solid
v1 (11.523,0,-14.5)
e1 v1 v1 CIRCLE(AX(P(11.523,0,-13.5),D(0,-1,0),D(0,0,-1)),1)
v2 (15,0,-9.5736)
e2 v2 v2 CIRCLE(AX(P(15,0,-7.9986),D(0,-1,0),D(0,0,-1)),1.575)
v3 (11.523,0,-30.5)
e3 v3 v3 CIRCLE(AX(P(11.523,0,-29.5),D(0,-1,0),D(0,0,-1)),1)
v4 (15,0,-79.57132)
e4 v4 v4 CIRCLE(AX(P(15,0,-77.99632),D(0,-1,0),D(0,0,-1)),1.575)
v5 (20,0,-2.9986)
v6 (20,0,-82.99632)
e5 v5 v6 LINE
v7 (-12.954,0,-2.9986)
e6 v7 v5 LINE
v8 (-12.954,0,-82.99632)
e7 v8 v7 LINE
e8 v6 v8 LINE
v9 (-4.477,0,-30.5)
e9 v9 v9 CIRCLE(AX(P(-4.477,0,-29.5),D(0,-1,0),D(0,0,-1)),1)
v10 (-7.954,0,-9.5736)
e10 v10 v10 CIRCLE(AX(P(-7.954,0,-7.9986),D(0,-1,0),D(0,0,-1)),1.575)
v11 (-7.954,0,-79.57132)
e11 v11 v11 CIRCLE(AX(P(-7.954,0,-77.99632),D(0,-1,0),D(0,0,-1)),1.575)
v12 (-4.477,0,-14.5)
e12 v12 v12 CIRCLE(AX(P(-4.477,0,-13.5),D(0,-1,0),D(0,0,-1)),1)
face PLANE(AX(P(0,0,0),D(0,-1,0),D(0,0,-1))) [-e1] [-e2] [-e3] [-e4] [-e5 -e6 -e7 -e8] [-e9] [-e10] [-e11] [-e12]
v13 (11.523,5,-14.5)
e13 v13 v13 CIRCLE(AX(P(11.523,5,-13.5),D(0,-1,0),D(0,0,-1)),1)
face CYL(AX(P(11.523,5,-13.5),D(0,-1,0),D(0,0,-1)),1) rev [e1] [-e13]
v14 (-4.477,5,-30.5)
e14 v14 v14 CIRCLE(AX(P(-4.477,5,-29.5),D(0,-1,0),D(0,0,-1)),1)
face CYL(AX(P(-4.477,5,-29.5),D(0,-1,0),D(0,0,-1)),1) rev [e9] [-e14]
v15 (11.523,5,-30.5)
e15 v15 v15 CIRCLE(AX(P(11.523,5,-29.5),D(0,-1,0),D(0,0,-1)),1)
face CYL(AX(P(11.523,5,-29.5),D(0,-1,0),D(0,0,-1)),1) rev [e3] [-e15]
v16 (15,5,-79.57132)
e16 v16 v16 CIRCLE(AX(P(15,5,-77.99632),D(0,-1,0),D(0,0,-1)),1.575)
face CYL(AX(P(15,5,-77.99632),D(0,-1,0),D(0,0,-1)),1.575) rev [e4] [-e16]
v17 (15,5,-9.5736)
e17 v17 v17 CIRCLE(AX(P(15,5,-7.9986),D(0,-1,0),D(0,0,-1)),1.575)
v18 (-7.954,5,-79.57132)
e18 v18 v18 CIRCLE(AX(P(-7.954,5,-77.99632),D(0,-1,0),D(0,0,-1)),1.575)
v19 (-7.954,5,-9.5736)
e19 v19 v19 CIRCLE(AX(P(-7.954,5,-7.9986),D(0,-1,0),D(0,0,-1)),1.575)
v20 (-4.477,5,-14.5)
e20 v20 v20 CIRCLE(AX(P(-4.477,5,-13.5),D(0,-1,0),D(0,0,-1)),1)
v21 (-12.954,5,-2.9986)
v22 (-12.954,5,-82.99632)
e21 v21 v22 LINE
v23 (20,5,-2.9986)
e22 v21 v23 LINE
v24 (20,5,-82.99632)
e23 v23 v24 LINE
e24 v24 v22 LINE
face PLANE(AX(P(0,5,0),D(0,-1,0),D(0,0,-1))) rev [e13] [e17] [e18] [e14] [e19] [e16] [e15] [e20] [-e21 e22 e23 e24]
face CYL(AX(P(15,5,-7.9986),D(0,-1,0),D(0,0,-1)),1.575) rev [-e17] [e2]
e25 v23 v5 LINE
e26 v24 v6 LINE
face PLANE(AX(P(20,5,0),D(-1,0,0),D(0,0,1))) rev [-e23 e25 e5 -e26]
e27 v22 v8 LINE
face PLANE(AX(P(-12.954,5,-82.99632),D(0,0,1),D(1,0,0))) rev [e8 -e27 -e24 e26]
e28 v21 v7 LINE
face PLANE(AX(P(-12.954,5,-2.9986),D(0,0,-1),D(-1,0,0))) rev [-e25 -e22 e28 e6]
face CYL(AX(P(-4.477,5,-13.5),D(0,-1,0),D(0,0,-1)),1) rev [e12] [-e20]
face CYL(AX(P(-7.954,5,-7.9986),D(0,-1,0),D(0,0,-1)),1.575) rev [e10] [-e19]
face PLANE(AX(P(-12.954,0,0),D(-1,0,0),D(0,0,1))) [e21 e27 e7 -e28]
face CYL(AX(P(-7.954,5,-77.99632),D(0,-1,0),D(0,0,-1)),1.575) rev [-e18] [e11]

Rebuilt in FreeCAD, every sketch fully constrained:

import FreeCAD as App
import Part
import Sketcher

doc = App.newDocument("Part")
body = doc.addObject("PartDesign::Body", "Body")

# Sketch on XZ plane
sketch1 = doc.addObject("Sketcher::SketchObject", "Sketch")
body.addObject(sketch1)
sketch1.AttachmentSupport = (doc.XZ_Plane, [""])
sketch1.MapMode = "FlatFace"
sketch1.addGeometry(Part.LineSegment(App.Vector(0, -40, 0), App.Vector(0, 0, 0)), False)
sketch1.addGeometry(Part.LineSegment(App.Vector(0, 0, 0), App.Vector(20, 0, 0)), False)
sketch1.addGeometry(Part.LineSegment(App.Vector(20, 0, 0), App.Vector(20, -40, 0)), False)
sketch1.addGeometry(Part.LineSegment(App.Vector(20, -40, 0), App.Vector(0, -40, 0)), False)
sketch1.addConstraint(Sketcher.Constraint("Coincident", 0, 2, 1, 1))
sketch1.addConstraint(Sketcher.Constraint("Coincident", 1, 2, 2, 1))
sketch1.addConstraint(Sketcher.Constraint("Coincident", 2, 2, 3, 1))
sketch1.addConstraint(Sketcher.Constraint("Coincident", 3, 2, 0, 1))
sketch1.addConstraint(Sketcher.Constraint("Vertical", 0))
sketch1.addConstraint(Sketcher.Constraint("Horizontal", 1))
sketch1.addConstraint(Sketcher.Constraint("Vertical", 2))
sketch1.addConstraint(Sketcher.Constraint("Horizontal", 3))
sketch1.addConstraint(Sketcher.Constraint("Coincident", 0, 2, -1, 1))
sketch1.addConstraint(Sketcher.Constraint("DistanceX", 1, 1, 1, 2, 20.0))
sketch1.addConstraint(Sketcher.Constraint("DistanceY", 0, 1, 0, 2, 40.0))
pad1 = doc.addObject("PartDesign::Pad", "Pad")
body.addObject(pad1)
pad1.Profile = sketch1
pad1.Length = 5
pad1.Reversed = True

# Sketch on XY plane
sketch2 = doc.addObject("Sketcher::SketchObject", "Sketch001")
body.addObject(sketch2)
sketch2.AttachmentSupport = (doc.XY_Plane, [""])
sketch2.MapMode = "FlatFace"
sketch2.AttachmentOffset = App.Placement(App.Vector(0, 0, -40), App.Rotation())
sketch2.addGeometry(Part.LineSegment(App.Vector(20, 5, 0), App.Vector(20, 0, 0)), False)
sketch2.addGeometry(Part.LineSegment(App.Vector(20, 0, 0), App.Vector(0, 0, 0)), False)
sketch2.addGeometry(Part.LineSegment(App.Vector(0, 0, 0), App.Vector(0, 5, 0)), False)
sketch2.addGeometry(Part.LineSegment(App.Vector(0, 5, 0), App.Vector(20, 5, 0)), False)
sketch2.addConstraint(Sketcher.Constraint("Coincident", 0, 2, 1, 1))
sketch2.addConstraint(Sketcher.Constraint("Coincident", 1, 2, 2, 1))
sketch2.addConstraint(Sketcher.Constraint("Coincident", 2, 2, 3, 1))
sketch2.addConstraint(Sketcher.Constraint("Coincident", 3, 2, 0, 1))
sketch2.addConstraint(Sketcher.Constraint("Vertical", 0))
sketch2.addConstraint(Sketcher.Constraint("Horizontal", 1))
sketch2.addConstraint(Sketcher.Constraint("Vertical", 2))
sketch2.addConstraint(Sketcher.Constraint("Horizontal", 3))
sketch2.addConstraint(Sketcher.Constraint("Coincident", 1, 2, -1, 1))
sketch2.addConstraint(Sketcher.Constraint("DistanceX", 1, 2, 1, 1, 20.0))
sketch2.addConstraint(Sketcher.Constraint("DistanceY", 0, 2, 0, 1, 5.0))
pad2 = doc.addObject("PartDesign::Pad", "Pad001")
body.addObject(pad2)
pad2.Profile = sketch2
pad2.Length = 33
pad2.Reversed = True

# Sketch on XZ plane
sketch3 = doc.addObject("Sketcher::SketchObject", "Sketch002")
body.addObject(sketch3)
sketch3.AttachmentSupport = (doc.XZ_Plane, [""])
sketch3.MapMode = "FlatFace"
sketch3.AttachmentOffset = App.Placement(App.Vector(0, 0, -5), App.Rotation())
sketch3.addGeometry(Part.LineSegment(App.Vector(0, -3, 0), App.Vector(0, 0, 0)), False)
sketch3.addGeometry(Part.LineSegment(App.Vector(0, 0, 0), App.Vector(20, 0, 0)), False)
sketch3.addGeometry(Part.LineSegment(App.Vector(20, 0, 0), App.Vector(20, -3, 0)), False)
sketch3.addGeometry(Part.LineSegment(App.Vector(20, -3, 0), App.Vector(0, -3, 0)), False)
sketch3.addConstraint(Sketcher.Constraint("Coincident", 0, 2, 1, 1))
sketch3.addConstraint(Sketcher.Constraint("Coincident", 1, 2, 2, 1))
sketch3.addConstraint(Sketcher.Constraint("Coincident", 2, 2, 3, 1))
sketch3.addConstraint(Sketcher.Constraint("Coincident", 3, 2, 0, 1))
sketch3.addConstraint(Sketcher.Constraint("Vertical", 0))
sketch3.addConstraint(Sketcher.Constraint("Horizontal", 1))
sketch3.addConstraint(Sketcher.Constraint("Vertical", 2))
sketch3.addConstraint(Sketcher.Constraint("Horizontal", 3))
sketch3.addConstraint(Sketcher.Constraint("Coincident", 0, 2, -1, 1))
sketch3.addConstraint(Sketcher.Constraint("DistanceX", 1, 1, 1, 2, 20.0))
sketch3.addConstraint(Sketcher.Constraint("DistanceY", 0, 1, 0, 2, 3.0))
pocket1 = doc.addObject("PartDesign::Pocket", "Pocket")
body.addObject(pocket1)
pocket1.Profile = sketch3
pocket1.Type = "ThroughAll"
pocket1.Reversed = True

# Sketch on XY plane
sketch4 = doc.addObject("Sketcher::SketchObject", "Sketch003")
body.addObject(sketch4)
sketch4.AttachmentSupport = (doc.XY_Plane, [""])
sketch4.MapMode = "FlatFace"
sketch4.AttachmentOffset = App.Placement(App.Vector(0, 0, -73), App.Rotation())
sketch4.addGeometry(Part.LineSegment(App.Vector(20, 5, 0), App.Vector(20, 0, 0)), False)
sketch4.addGeometry(Part.LineSegment(App.Vector(20, 0, 0), App.Vector(0, 0, 0)), False)
sketch4.addGeometry(Part.LineSegment(App.Vector(0, 0, 0), App.Vector(0, 5, 0)), False)
sketch4.addGeometry(Part.LineSegment(App.Vector(0, 5, 0), App.Vector(20, 5, 0)), False)
sketch4.addConstraint(Sketcher.Constraint("Coincident", 0, 2, 1, 1))
sketch4.addConstraint(Sketcher.Constraint("Coincident", 1, 2, 2, 1))
sketch4.addConstraint(Sketcher.Constraint("Coincident", 2, 2, 3, 1))
sketch4.addConstraint(Sketcher.Constraint("Coincident", 3, 2, 0, 1))
sketch4.addConstraint(Sketcher.Constraint("Vertical", 0))
sketch4.addConstraint(Sketcher.Constraint("Horizontal", 1))
sketch4.addConstraint(Sketcher.Constraint("Vertical", 2))
sketch4.addConstraint(Sketcher.Constraint("Horizontal", 3))
sketch4.addConstraint(Sketcher.Constraint("Coincident", 1, 2, -1, 1))
sketch4.addConstraint(Sketcher.Constraint("DistanceX", 1, 2, 1, 1, 20.0))
sketch4.addConstraint(Sketcher.Constraint("DistanceY", 0, 2, 0, 1, 5.0))
pad3 = doc.addObject("PartDesign::Pad", "Pad002")
body.addObject(pad3)
pad3.Profile = sketch4
pad3.Length = 10
pad3.Reversed = True

# Sketch on XY plane
sketch5 = doc.addObject("Sketcher::SketchObject", "Sketch004")
body.addObject(sketch5)
sketch5.AttachmentSupport = (doc.XY_Plane, [""])
sketch5.MapMode = "FlatFace"
sketch5.AttachmentOffset = App.Placement(App.Vector(0, 0, -83), App.Rotation())
sketch5.addGeometry(Part.LineSegment(App.Vector(20, 5, 0), App.Vector(20, 0, 0)), False)
sketch5.addGeometry(Part.LineSegment(App.Vector(20, 0, 0), App.Vector(0, 0, 0)), False)
sketch5.addGeometry(Part.LineSegment(App.Vector(0, 0, 0), App.Vector(0, 5, 0)), False)
sketch5.addGeometry(Part.LineSegment(App.Vector(0, 5, 0), App.Vector(20, 5, 0)), False)
sketch5.addConstraint(Sketcher.Constraint("Coincident", 0, 2, 1, 1))
sketch5.addConstraint(Sketcher.Constraint("Coincident", 1, 2, 2, 1))
sketch5.addConstraint(Sketcher.Constraint("Coincident", 2, 2, 3, 1))
sketch5.addConstraint(Sketcher.Constraint("Coincident", 3, 2, 0, 1))
sketch5.addConstraint(Sketcher.Constraint("Vertical", 0))
sketch5.addConstraint(Sketcher.Constraint("Horizontal", 1))
sketch5.addConstraint(Sketcher.Constraint("Vertical", 2))
sketch5.addConstraint(Sketcher.Constraint("Horizontal", 3))
sketch5.addConstraint(Sketcher.Constraint("Coincident", 1, 2, -1, 1))
sketch5.addConstraint(Sketcher.Constraint("DistanceX", 1, 2, 1, 1, 20.0))
sketch5.addConstraint(Sketcher.Constraint("DistanceY", 0, 2, 0, 1, 5.0))
pad4 = doc.addObject("PartDesign::Pad", "Pad003")
body.addObject(pad4)
pad4.Profile = sketch5
pad4.Length = 1.5
pad4.Reversed = True

# Sketch on XY plane
sketch6 = doc.addObject("Sketcher::SketchObject", "Sketch005")
body.addObject(sketch6)
sketch6.AttachmentSupport = (doc.XY_Plane, [""])
sketch6.MapMode = "FlatFace"
sketch6.AttachmentOffset = App.Placement(App.Vector(0, 0, -3), App.Rotation())
sketch6.addGeometry(Part.LineSegment(App.Vector(0, 5, 0), App.Vector(0, 0, 0)), False)
sketch6.addGeometry(Part.LineSegment(App.Vector(0, 0, 0), App.Vector(20, 0, 0)), False)
sketch6.addGeometry(Part.LineSegment(App.Vector(20, 0, 0), App.Vector(20, 5, 0)), False)
sketch6.addGeometry(Part.LineSegment(App.Vector(20, 5, 0), App.Vector(0, 5, 0)), False)
sketch6.addConstraint(Sketcher.Constraint("Coincident", 0, 2, 1, 1))
sketch6.addConstraint(Sketcher.Constraint("Coincident", 1, 2, 2, 1))
sketch6.addConstraint(Sketcher.Constraint("Coincident", 2, 2, 3, 1))
sketch6.addConstraint(Sketcher.Constraint("Coincident", 3, 2, 0, 1))
sketch6.addConstraint(Sketcher.Constraint("Vertical", 0))
sketch6.addConstraint(Sketcher.Constraint("Horizontal", 1))
sketch6.addConstraint(Sketcher.Constraint("Vertical", 2))
sketch6.addConstraint(Sketcher.Constraint("Horizontal", 3))
sketch6.addConstraint(Sketcher.Constraint("Coincident", 0, 2, -1, 1))
sketch6.addConstraint(Sketcher.Constraint("DistanceX", 1, 1, 1, 2, 20.0))
sketch6.addConstraint(Sketcher.Constraint("DistanceY", 0, 2, 0, 1, 5.0))
pad5 = doc.addObject("PartDesign::Pad", "Pad004")
body.addObject(pad5)
pad5.Profile = sketch6
pad5.Length = 1.5

# Sketch on YZ plane
sketch7 = doc.addObject("Sketcher::SketchObject", "Sketch006")
body.addObject(sketch7)
sketch7.AttachmentSupport = (doc.YZ_Plane, [""])
sketch7.MapMode = "FlatFace"
sketch7.addGeometry(Part.LineSegment(App.Vector(5, -84, 0), App.Vector(0, -84, 0)), False)
sketch7.addGeometry(Part.LineSegment(App.Vector(0, -84, 0), App.Vector(0, -2, 0)), False)
sketch7.addGeometry(Part.LineSegment(App.Vector(0, -2, 0), App.Vector(5, -2, 0)), False)
sketch7.addGeometry(Part.LineSegment(App.Vector(5, -2, 0), App.Vector(5, -84, 0)), False)
sketch7.addConstraint(Sketcher.Constraint("Coincident", 0, 2, 1, 1))
sketch7.addConstraint(Sketcher.Constraint("Coincident", 1, 2, 2, 1))
sketch7.addConstraint(Sketcher.Constraint("Coincident", 2, 2, 3, 1))
sketch7.addConstraint(Sketcher.Constraint("Coincident", 3, 2, 0, 1))
sketch7.addConstraint(Sketcher.Constraint("Horizontal", 0))
sketch7.addConstraint(Sketcher.Constraint("Vertical", 1))
sketch7.addConstraint(Sketcher.Constraint("Horizontal", 2))
sketch7.addConstraint(Sketcher.Constraint("Vertical", 3))
sketch7.addConstraint(Sketcher.Constraint("PointOnObject", 0, 2, -2))
sketch7.addConstraint(Sketcher.Constraint("DistanceX", 0, 2, 0, 1, 5.0))
sketch7.addConstraint(Sketcher.Constraint("DistanceY", 1, 1, 1, 2, 83.0))
sketch7.addConstraint(Sketcher.Constraint("DistanceY", 0, 2, -1, 1, 84.5))
pad6 = doc.addObject("PartDesign::Pad", "Pad005")
body.addObject(pad6)
pad6.Profile = sketch7
pad6.Length = 12.954
pad6.Reversed = True

# Sketch on XZ plane
sketch8 = doc.addObject("Sketcher::SketchObject", "Sketch007")
body.addObject(sketch8)
sketch8.AttachmentSupport = (doc.XZ_Plane, [""])
sketch8.MapMode = "FlatFace"
sketch8.addGeometry(Part.Circle(App.Vector(-4.5, -13.5, 0), App.Vector(0, 0, 1), 1), False)
sketch8.addGeometry(Part.Circle(App.Vector(11.5, -13.5, 0), App.Vector(0, 0, 1), 1), False)
sketch8.addGeometry(Part.Circle(App.Vector(11.5, -29.5, 0), App.Vector(0, 0, 1), 1), False)
sketch8.addGeometry(Part.Circle(App.Vector(-4.5, -29.5, 0), App.Vector(0, 0, 1), 1), False)
sketch8.addConstraint(Sketcher.Constraint("Equal", 0, 1))
sketch8.addConstraint(Sketcher.Constraint("Equal", 1, 2))
sketch8.addConstraint(Sketcher.Constraint("Equal", 2, 3))
sketch8.addConstraint(Sketcher.Constraint("Horizontal", 0, 3, 1, 3))
sketch8.addConstraint(Sketcher.Constraint("Horizontal", 2, 3, 3, 3))
sketch8.addConstraint(Sketcher.Constraint("Vertical", 1, 3, 2, 3))
sketch8.addConstraint(Sketcher.Constraint("Vertical", 0, 3, 3, 3))
sketch8.addConstraint(Sketcher.Constraint("Diameter", 0, 2.0))
sketch8.addConstraint(Sketcher.Constraint("DistanceX", 0, 3, 1, 3, 16.0))
sketch8.addConstraint(Sketcher.Constraint("DistanceY", 2, 3, 1, 3, 16.0))
sketch8.addConstraint(Sketcher.Constraint("DistanceY", 0, 3, -1, 1, 13.5))
sketch8.addConstraint(Sketcher.Constraint("DistanceX", 0, 3, -1, 1, 4.477))
pocket2 = doc.addObject("PartDesign::Pocket", "Pocket001")
body.addObject(pocket2)
pocket2.Profile = sketch8
pocket2.Type = "ThroughAll"

# Sketch on XZ plane
sketch9 = doc.addObject("Sketcher::SketchObject", "Sketch008")
body.addObject(sketch9)
sketch9.AttachmentSupport = (doc.XZ_Plane, [""])
sketch9.MapMode = "FlatFace"
sketch9.addGeometry(Part.LineSegment(App.Vector(-13, -1.5, 0), App.Vector(-13, -3, 0)), False)
sketch9.addGeometry(Part.LineSegment(App.Vector(-13, -3, 0), App.Vector(20, -3, 0)), False)
sketch9.addGeometry(Part.LineSegment(App.Vector(20, -3, 0), App.Vector(20, -1.5, 0)), False)
sketch9.addGeometry(Part.LineSegment(App.Vector(20, -1.5, 0), App.Vector(-13, -1.5, 0)), False)
sketch9.addGeometry(Part.LineSegment(App.Vector(-13, -83, 0), App.Vector(-13, -84.5, 0)), False)
sketch9.addGeometry(Part.LineSegment(App.Vector(-13, -84.5, 0), App.Vector(20, -84.5, 0)), False)
sketch9.addGeometry(Part.LineSegment(App.Vector(20, -84.5, 0), App.Vector(20, -83, 0)), False)
sketch9.addGeometry(Part.LineSegment(App.Vector(20, -83, 0), App.Vector(-13, -83, 0)), False)
sketch9.addConstraint(Sketcher.Constraint("Coincident", 0, 2, 1, 1))
sketch9.addConstraint(Sketcher.Constraint("Coincident", 1, 2, 2, 1))
sketch9.addConstraint(Sketcher.Constraint("Coincident", 2, 2, 3, 1))
sketch9.addConstraint(Sketcher.Constraint("Coincident", 3, 2, 0, 1))
sketch9.addConstraint(Sketcher.Constraint("Coincident", 4, 2, 5, 1))
sketch9.addConstraint(Sketcher.Constraint("Coincident", 5, 2, 6, 1))
sketch9.addConstraint(Sketcher.Constraint("Coincident", 6, 2, 7, 1))
sketch9.addConstraint(Sketcher.Constraint("Coincident", 7, 2, 4, 1))
sketch9.addConstraint(Sketcher.Constraint("Vertical", 0))
sketch9.addConstraint(Sketcher.Constraint("Horizontal", 1))
sketch9.addConstraint(Sketcher.Constraint("Vertical", 2))
sketch9.addConstraint(Sketcher.Constraint("Horizontal", 3))
sketch9.addConstraint(Sketcher.Constraint("Vertical", 4))
sketch9.addConstraint(Sketcher.Constraint("Horizontal", 5))
sketch9.addConstraint(Sketcher.Constraint("Vertical", 6))
sketch9.addConstraint(Sketcher.Constraint("Horizontal", 7))
sketch9.addConstraint(Sketcher.Constraint("Vertical", 3, 2, 4, 2))
sketch9.addConstraint(Sketcher.Constraint("Vertical", 2, 2, 5, 2))
sketch9.addConstraint(Sketcher.Constraint("DistanceX", -1, 1, 1, 2, 20.0))
sketch9.addConstraint(Sketcher.Constraint("DistanceY", 4, 2, 3, 2, 83.0))
sketch9.addConstraint(Sketcher.Constraint("DistanceY", 2, 2, -1, 1, 1.5))
sketch9.addConstraint(Sketcher.Constraint("DistanceX", 1, 1, 1, 2, 32.954))
sketch9.addConstraint(Sketcher.Constraint("DistanceY", 0, 2, 0, 1, 1.4986))
sketch9.addConstraint(Sketcher.Constraint("DistanceY", 4, 2, 4, 1, 1.50368))
pocket3 = doc.addObject("PartDesign::Pocket", "Pocket002")
body.addObject(pocket3)
pocket3.Profile = sketch9
pocket3.Type = "ThroughAll"

# Sketch on XZ plane
sketch10 = doc.addObject("Sketcher::SketchObject", "Sketch009")
body.addObject(sketch10)
sketch10.AttachmentSupport = (doc.XZ_Plane, [""])
sketch10.MapMode = "FlatFace"
sketch10.addGeometry(Part.Circle(App.Vector(-8, -8, 0), App.Vector(0, 0, 1), 1.6), False)
sketch10.addGeometry(Part.Circle(App.Vector(15, -8, 0), App.Vector(0, 0, 1), 1.6), False)
sketch10.addGeometry(Part.Circle(App.Vector(15, -78, 0), App.Vector(0, 0, 1), 1.6), False)
sketch10.addGeometry(Part.Circle(App.Vector(-8, -78, 0), App.Vector(0, 0, 1), 1.6), False)
sketch10.addConstraint(Sketcher.Constraint("Equal", 0, 1))
sketch10.addConstraint(Sketcher.Constraint("Equal", 1, 2))
sketch10.addConstraint(Sketcher.Constraint("Equal", 2, 3))
sketch10.addConstraint(Sketcher.Constraint("Horizontal", 0, 3, 1, 3))
sketch10.addConstraint(Sketcher.Constraint("Horizontal", 2, 3, 3, 3))
sketch10.addConstraint(Sketcher.Constraint("Vertical", 1, 3, 2, 3))
sketch10.addConstraint(Sketcher.Constraint("Vertical", 0, 3, 3, 3))
sketch10.addConstraint(Sketcher.Constraint("Diameter", 0, 3.15))
sketch10.addConstraint(Sketcher.Constraint("DistanceX", -1, 1, 1, 3, 15.0))
sketch10.addConstraint(Sketcher.Constraint("DistanceX", 0, 3, -1, 1, 7.954))
sketch10.addConstraint(Sketcher.Constraint("DistanceY", 0, 3, -1, 1, 7.9986))
sketch10.addConstraint(Sketcher.Constraint("DistanceY", 2, 3, -1, 1, 77.99632))
pocket4 = doc.addObject("PartDesign::Pocket", "Pocket003")
body.addObject(pocket4)
pocket4.Profile = sketch10
pocket4.Type = "ThroughAll"

doc.recompute()
